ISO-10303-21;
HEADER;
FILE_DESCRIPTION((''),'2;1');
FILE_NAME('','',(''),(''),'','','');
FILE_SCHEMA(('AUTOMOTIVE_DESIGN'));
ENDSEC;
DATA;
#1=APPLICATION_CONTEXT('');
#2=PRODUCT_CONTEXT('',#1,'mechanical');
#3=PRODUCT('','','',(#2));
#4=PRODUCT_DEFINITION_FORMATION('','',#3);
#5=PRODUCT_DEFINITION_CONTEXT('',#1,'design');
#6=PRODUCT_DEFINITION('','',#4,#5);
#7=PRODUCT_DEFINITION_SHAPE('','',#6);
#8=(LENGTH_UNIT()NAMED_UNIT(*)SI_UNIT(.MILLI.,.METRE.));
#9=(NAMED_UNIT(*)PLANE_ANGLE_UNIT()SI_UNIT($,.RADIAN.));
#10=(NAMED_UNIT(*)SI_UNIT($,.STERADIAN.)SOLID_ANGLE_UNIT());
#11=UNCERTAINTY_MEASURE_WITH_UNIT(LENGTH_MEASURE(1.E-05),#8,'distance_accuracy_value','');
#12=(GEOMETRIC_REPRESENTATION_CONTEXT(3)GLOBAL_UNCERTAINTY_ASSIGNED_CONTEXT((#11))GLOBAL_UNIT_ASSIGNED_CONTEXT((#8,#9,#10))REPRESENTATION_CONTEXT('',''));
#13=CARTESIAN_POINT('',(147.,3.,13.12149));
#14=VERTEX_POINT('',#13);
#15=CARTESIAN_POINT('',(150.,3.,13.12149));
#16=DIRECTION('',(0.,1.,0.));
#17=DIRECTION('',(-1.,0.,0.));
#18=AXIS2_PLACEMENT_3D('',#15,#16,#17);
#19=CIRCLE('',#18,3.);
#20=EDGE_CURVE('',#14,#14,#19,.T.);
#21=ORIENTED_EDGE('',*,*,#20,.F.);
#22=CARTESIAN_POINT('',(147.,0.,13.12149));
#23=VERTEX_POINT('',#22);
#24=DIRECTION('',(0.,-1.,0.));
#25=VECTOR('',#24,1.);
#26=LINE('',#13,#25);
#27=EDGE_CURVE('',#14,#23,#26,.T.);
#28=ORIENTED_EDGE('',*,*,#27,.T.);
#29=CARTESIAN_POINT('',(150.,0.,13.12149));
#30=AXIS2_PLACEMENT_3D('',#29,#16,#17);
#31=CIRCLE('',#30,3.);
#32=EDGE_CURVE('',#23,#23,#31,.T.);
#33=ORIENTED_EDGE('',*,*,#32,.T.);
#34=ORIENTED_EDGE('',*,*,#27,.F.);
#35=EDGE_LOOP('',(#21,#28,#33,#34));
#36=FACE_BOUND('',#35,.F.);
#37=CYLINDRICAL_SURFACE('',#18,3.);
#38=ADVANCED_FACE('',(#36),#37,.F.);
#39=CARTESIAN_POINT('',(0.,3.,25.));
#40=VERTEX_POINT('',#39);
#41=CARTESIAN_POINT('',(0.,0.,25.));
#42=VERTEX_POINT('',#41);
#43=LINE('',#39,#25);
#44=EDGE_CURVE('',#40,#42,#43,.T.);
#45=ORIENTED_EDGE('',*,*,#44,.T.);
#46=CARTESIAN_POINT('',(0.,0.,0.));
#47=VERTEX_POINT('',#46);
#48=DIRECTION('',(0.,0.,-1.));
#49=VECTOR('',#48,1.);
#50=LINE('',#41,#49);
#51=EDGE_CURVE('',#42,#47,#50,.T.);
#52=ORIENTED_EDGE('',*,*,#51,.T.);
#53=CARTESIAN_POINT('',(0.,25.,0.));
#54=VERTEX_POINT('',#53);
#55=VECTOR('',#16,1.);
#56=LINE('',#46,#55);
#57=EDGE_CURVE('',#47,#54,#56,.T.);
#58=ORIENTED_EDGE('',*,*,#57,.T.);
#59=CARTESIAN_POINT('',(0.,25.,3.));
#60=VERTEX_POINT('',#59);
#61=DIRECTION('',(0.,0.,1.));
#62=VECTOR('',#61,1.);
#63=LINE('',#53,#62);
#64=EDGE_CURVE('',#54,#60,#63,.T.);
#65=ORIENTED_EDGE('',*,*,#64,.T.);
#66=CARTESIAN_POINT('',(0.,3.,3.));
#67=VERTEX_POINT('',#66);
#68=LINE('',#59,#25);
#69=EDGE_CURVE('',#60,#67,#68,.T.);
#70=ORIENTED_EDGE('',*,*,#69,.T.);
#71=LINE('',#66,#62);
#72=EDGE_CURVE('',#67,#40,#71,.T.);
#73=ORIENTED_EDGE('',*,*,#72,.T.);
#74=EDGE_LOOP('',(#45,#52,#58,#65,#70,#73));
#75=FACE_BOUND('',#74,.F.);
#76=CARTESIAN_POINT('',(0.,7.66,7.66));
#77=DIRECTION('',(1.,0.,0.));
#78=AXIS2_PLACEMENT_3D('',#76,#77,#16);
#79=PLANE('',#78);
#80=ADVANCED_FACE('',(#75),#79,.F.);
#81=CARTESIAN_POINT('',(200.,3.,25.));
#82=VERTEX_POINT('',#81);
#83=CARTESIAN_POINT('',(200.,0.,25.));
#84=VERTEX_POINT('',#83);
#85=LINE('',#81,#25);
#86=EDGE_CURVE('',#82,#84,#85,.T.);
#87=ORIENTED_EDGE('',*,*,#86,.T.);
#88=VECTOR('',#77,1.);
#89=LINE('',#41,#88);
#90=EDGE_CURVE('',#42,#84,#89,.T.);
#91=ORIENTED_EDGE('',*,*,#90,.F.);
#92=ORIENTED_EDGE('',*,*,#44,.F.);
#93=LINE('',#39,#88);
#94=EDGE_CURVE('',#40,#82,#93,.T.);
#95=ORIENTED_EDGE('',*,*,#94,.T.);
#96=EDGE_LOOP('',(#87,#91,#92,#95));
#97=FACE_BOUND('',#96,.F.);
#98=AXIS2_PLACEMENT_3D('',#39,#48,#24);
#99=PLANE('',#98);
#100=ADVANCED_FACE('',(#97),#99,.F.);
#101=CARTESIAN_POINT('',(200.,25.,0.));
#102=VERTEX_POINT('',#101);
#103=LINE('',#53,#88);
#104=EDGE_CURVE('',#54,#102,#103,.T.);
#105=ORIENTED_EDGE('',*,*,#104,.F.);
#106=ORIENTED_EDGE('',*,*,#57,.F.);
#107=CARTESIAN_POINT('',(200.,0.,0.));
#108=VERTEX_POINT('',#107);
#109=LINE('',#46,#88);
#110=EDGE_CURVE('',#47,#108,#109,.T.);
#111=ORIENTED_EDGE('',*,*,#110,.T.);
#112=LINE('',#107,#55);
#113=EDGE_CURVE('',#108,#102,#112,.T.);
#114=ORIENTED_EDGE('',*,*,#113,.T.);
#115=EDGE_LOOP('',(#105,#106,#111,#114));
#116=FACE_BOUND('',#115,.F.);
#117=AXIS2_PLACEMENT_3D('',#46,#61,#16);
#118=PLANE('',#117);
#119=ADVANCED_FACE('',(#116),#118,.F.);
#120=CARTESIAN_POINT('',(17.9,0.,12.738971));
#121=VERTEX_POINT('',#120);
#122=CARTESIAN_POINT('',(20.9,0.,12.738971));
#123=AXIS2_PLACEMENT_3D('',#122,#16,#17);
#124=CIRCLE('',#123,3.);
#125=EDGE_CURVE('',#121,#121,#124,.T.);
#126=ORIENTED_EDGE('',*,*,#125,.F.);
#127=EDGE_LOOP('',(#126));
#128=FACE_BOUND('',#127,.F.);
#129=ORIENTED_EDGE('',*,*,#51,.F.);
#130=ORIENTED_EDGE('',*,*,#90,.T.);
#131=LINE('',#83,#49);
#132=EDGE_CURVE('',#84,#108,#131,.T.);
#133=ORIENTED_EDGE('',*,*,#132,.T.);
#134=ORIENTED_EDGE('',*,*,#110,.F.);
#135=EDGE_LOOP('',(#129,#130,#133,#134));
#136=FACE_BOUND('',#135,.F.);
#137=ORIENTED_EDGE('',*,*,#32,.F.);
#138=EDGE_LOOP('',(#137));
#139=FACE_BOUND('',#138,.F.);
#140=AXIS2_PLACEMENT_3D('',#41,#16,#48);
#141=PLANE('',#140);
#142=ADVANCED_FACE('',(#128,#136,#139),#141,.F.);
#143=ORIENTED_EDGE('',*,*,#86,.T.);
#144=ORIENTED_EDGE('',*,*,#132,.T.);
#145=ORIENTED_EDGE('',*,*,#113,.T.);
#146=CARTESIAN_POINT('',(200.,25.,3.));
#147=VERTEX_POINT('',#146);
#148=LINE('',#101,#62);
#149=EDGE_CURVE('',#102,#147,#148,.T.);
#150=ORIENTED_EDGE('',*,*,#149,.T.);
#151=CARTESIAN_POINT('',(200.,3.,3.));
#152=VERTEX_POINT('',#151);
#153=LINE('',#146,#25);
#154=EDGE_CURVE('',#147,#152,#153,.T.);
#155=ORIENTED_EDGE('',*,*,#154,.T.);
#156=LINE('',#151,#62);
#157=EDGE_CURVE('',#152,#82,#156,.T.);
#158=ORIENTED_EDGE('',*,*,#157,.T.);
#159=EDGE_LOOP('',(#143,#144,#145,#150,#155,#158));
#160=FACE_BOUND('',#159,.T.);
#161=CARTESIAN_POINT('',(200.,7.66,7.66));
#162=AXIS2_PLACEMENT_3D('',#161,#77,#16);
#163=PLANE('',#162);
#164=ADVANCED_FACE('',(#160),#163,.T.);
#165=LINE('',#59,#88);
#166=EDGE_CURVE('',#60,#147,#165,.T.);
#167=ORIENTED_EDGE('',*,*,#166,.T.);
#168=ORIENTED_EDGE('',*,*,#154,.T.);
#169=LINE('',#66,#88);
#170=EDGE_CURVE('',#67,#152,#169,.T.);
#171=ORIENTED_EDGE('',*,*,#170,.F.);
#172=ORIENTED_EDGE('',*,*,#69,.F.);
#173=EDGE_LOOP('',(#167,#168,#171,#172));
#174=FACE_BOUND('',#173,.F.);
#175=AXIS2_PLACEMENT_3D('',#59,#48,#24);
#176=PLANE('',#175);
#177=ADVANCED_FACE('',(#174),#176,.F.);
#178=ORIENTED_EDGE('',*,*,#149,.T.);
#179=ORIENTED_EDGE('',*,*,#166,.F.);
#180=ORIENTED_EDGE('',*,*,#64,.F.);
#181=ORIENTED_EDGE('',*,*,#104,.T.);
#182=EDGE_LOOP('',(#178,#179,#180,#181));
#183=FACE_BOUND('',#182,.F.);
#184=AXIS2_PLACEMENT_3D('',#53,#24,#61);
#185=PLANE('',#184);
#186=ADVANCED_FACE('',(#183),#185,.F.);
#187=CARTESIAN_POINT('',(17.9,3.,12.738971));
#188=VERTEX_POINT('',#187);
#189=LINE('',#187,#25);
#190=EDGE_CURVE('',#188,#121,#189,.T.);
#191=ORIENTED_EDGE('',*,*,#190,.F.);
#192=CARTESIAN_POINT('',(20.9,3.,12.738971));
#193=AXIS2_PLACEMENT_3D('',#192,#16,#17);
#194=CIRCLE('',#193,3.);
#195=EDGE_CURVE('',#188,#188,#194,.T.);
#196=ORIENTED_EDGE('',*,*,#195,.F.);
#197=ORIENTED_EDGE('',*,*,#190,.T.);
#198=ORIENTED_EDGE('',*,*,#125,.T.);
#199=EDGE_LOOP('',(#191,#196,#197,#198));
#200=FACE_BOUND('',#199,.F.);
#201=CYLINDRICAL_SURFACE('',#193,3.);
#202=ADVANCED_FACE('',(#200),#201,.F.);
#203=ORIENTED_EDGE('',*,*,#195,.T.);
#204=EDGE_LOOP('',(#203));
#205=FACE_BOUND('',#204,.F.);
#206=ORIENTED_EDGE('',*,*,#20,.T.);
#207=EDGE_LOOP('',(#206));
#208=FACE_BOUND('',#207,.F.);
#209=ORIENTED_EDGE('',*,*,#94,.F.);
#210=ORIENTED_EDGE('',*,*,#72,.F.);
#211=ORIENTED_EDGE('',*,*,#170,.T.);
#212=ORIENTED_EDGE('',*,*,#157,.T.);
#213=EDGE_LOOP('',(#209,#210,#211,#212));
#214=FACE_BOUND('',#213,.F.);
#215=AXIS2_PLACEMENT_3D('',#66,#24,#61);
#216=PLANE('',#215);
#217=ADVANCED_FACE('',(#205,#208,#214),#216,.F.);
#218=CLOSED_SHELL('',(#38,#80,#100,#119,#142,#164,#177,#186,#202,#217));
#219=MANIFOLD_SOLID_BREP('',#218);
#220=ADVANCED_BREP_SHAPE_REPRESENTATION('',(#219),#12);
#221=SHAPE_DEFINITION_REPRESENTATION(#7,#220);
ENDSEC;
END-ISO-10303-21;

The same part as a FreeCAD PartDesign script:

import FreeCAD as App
import Part
import Sketcher
from FreeCAD import Vector

doc = App.newDocument("Part")
body = doc.addObject("PartDesign::Body", "Body")

# Sketch on YZ plane
sketch1 = body.newObject("Sketcher::SketchObject", "Sketch")
sketch1.AttachmentSupport = (doc.getObject("YZ_Plane"), [""])
sketch1.MapMode = "FlatFace"
sketch1.addGeometry(Part.LineSegment(Vector(3, 25, 0), Vector(0, 25, 0)), False)
sketch1.addGeometry(Part.LineSegment(Vector(0, 25, 0), Vector(0, 0, 0)), False)
sketch1.addGeometry(Part.LineSegment(Vector(0, 0, 0), Vector(25, 0, 0)), False)
sketch1.addGeometry(Part.LineSegment(Vector(25, 0, 0), Vector(25, 3, 0)), False)
sketch1.addGeometry(Part.LineSegment(Vector(25, 3, 0), Vector(3, 3, 0)), False)
sketch1.addGeometry(Part.LineSegment(Vector(3, 3, 0), Vector(3, 25, 0)), False)
sketch1.addConstraint(Sketcher.Constraint("Coincident", 0, 2, 1, 1))
sketch1.addConstraint(Sketcher.Constraint("Coincident", 1, 2, 2, 1))
sketch1.addConstraint(Sketcher.Constraint("Coincident", 2, 2, 3, 1))
sketch1.addConstraint(Sketcher.Constraint("Coincident", 3, 2, 4, 1))
sketch1.addConstraint(Sketcher.Constraint("Coincident", 4, 2, 5, 1))
sketch1.addConstraint(Sketcher.Constraint("Coincident", 5, 2, 0, 1))
sketch1.addConstraint(Sketcher.Constraint("Horizontal", 0))
sketch1.addConstraint(Sketcher.Constraint("Vertical", 1))
sketch1.addConstraint(Sketcher.Constraint("Horizontal", 2))
sketch1.addConstraint(Sketcher.Constraint("Vertical", 3))
sketch1.addConstraint(Sketcher.Constraint("Horizontal", 4))
sketch1.addConstraint(Sketcher.Constraint("Vertical", 5))
sketch1.addConstraint(Sketcher.Constraint("Coincident", 1, 2, -1, 1))
sketch1.addConstraint(Sketcher.Constraint("Equal", 2, 1))
sketch1.addConstraint(Sketcher.Constraint("Equal", 0, 3))
sketch1.addConstraint(Sketcher.Constraint("DistanceX", 0, 2, 0, 1, 3.0))
sketch1.addConstraint(Sketcher.Constraint("DistanceX", 2, 1, 2, 2, 25.0))
pad1 = body.newObject("PartDesign::Pad", "Pad")
pad1.Profile = sketch1
pad1.Length = 200

# Sketch on XZ plane
sketch2 = body.newObject("Sketcher::SketchObject", "Sketch001")
sketch2.AttachmentSupport = (doc.getObject("XZ_Plane"), [""])
sketch2.MapMode = "FlatFace"
sketch2.AttachmentOffset = App.Placement(Vector(0, 0, -3), App.Rotation())
sketch2.addGeometry(Part.Circle(Vector(150, 13.1, 0), Vector(0, 0, 1), 3), False)
sketch2.addGeometry(Part.Circle(Vector(20.9, 12.7, 0), Vector(0, 0, 1), 3), False)
sketch2.addConstraint(Sketcher.Constraint("Equal", 0, 1))
sketch2.addConstraint(Sketcher.Constraint("Diameter", 0, 6.0))
sketch2.addConstraint(Sketcher.Constraint("DistanceX", -1, 1, 0, 3, 150.0))
sketch2.addConstraint(Sketcher.Constraint("DistanceX", -1, 1, 1, 3, 20.9))
sketch2.addConstraint(Sketcher.Constraint("DistanceY", -1, 1, 0, 3, 13.12149))
sketch2.addConstraint(Sketcher.Constraint("DistanceY", -1, 1, 1, 3, 12.738971))
pocket1 = body.newObject("PartDesign::Pocket", "Pocket")
pocket1.Profile = sketch2
pocket1.Length = 25
pocket1.Reversed = True

doc.recompute()
